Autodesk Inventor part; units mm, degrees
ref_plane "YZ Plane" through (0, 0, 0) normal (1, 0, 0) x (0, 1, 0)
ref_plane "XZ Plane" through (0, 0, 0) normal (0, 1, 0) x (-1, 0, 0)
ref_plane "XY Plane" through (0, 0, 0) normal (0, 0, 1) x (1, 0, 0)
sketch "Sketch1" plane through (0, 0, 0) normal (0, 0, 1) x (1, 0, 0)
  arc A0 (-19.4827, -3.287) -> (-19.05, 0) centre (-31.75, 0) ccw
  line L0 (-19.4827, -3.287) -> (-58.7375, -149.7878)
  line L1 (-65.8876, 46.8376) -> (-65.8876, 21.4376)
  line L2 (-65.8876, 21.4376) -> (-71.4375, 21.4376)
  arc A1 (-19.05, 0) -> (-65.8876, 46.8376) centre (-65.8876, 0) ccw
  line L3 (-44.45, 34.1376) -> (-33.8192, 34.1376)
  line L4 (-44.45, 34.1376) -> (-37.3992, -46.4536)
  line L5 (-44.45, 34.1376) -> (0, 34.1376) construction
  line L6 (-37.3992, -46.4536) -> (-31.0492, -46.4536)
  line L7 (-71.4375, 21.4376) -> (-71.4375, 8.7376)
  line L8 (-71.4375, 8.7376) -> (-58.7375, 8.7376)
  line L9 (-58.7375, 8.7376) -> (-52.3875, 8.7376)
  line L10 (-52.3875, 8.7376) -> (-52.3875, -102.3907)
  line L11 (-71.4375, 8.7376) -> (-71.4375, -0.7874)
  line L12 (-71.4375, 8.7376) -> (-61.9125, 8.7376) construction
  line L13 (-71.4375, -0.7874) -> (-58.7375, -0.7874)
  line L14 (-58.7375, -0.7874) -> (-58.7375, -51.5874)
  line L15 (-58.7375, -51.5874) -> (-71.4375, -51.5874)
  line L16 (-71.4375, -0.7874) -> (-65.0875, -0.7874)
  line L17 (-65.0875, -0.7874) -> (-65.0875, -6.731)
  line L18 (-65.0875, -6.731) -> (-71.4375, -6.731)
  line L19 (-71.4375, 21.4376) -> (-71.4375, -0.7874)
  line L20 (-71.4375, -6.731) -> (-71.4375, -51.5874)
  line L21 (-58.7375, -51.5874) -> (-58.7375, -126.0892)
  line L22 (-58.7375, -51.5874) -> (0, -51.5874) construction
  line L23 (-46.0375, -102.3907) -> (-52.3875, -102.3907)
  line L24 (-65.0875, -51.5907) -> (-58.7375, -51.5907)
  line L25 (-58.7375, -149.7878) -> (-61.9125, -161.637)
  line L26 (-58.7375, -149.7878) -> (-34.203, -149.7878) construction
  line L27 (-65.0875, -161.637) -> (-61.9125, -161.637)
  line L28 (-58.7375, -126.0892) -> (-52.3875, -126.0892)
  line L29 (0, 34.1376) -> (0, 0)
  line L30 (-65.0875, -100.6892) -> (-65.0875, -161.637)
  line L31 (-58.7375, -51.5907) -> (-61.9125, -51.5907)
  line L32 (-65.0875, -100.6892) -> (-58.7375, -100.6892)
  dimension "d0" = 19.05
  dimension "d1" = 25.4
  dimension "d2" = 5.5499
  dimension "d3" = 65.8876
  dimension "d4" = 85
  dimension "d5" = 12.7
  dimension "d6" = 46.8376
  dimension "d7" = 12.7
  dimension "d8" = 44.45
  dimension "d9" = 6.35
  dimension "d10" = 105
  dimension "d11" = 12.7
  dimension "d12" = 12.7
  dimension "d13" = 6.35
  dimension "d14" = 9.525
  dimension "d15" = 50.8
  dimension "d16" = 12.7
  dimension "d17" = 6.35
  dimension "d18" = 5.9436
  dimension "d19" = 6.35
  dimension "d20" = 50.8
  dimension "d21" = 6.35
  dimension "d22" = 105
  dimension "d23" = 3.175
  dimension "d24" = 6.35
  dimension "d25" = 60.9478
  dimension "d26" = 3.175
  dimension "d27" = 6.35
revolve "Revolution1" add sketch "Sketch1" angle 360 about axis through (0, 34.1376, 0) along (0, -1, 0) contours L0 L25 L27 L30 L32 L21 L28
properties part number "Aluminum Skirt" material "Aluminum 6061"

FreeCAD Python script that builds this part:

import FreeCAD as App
import Part
import Sketcher
from FreeCAD import Vector
Q = App.Units.Quantity

doc = App.newDocument("Part")
body = doc.addObject("PartDesign::Body", "Body")

# Sketch on XY plane
sketch1 = body.newObject("Sketcher::SketchObject", "Sketch")
sketch1.AttachmentSupport = (doc.getObject("XY_Plane"), [""])
sketch1.MapMode = "FlatFace"
sketch1.addGeometry([
    Part.LineSegment(Vector(-58.7375, -149.7878, 0), Vector(-52.387476, -126.089206, 0)),  # 0
    Part.LineSegment(Vector(-52.3875, -126.0892, 0), Vector(-58.7375, -126.0892, 0)),  # 1
    Part.LineSegment(Vector(-58.7375, -126.0892, 0), Vector(-58.7375, -100.6892, 0)),  # 2
    Part.LineSegment(Vector(-58.7375, -100.6892, 0), Vector(-65.0875, -100.6892, 0)),  # 3
    Part.LineSegment(Vector(-65.0875, -100.6892, 0), Vector(-65.0875, -161.637, 0)),  # 4
    Part.LineSegment(Vector(-65.0875, -161.637, 0), Vector(-61.9125, -161.637, 0)),  # 5
    Part.LineSegment(Vector(-61.9125, -161.637, 0), Vector(-58.7375, -149.7878, 0)),  # 6
], False)
sketch1.addConstraint([
    Sketcher.Constraint("Coincident", 0, 2, 1, 1),
    Sketcher.Constraint("Coincident", 1, 2, 2, 1),
    Sketcher.Constraint("Coincident", 2, 2, 3, 1),
    Sketcher.Constraint("Coincident", 3, 2, 4, 1),
    Sketcher.Constraint("Coincident", 4, 2, 5, 1),
    Sketcher.Constraint("Coincident", 5, 2, 6, 1),
    Sketcher.Constraint("Coincident", 6, 2, 0, 1),
    Sketcher.Constraint("Horizontal", 1),
    Sketcher.Constraint("Vertical", 2),
    Sketcher.Constraint("Horizontal", 3),
    Sketcher.Constraint("Vertical", 4),
    Sketcher.Constraint("Horizontal", 5),
    Sketcher.Constraint("Parallel", 0, 6),
    Sketcher.Constraint("Vertical", 2, 2, 6, 2),
    Sketcher.Constraint("Equal", 1, 3),
    Sketcher.Constraint("DistanceY", 2, 1, 2, 2, Q("1 in")),
    Sketcher.Constraint("DistanceX", 1, 2, 1, 1, Q("0.25 in")),
    Sketcher.Constraint("DistanceX", 5, 1, 5, 2, Q("0.125 in")),
    Sketcher.Constraint("Angle", 0, Q("75 deg")),
    Sketcher.Constraint("DistanceX", 0, 2, -1, 1, Q("2.0625 in")),
    Sketcher.Constraint("DistanceY", 0, 2, -1, 1, 126.0892),
])
revolution = body.newObject("PartDesign::Revolution", "Revolution")
revolution.Profile = sketch1
revolution.ReferenceAxis = (sketch1, ["V_Axis"])
revolution.Angle = 360

doc.recompute()
